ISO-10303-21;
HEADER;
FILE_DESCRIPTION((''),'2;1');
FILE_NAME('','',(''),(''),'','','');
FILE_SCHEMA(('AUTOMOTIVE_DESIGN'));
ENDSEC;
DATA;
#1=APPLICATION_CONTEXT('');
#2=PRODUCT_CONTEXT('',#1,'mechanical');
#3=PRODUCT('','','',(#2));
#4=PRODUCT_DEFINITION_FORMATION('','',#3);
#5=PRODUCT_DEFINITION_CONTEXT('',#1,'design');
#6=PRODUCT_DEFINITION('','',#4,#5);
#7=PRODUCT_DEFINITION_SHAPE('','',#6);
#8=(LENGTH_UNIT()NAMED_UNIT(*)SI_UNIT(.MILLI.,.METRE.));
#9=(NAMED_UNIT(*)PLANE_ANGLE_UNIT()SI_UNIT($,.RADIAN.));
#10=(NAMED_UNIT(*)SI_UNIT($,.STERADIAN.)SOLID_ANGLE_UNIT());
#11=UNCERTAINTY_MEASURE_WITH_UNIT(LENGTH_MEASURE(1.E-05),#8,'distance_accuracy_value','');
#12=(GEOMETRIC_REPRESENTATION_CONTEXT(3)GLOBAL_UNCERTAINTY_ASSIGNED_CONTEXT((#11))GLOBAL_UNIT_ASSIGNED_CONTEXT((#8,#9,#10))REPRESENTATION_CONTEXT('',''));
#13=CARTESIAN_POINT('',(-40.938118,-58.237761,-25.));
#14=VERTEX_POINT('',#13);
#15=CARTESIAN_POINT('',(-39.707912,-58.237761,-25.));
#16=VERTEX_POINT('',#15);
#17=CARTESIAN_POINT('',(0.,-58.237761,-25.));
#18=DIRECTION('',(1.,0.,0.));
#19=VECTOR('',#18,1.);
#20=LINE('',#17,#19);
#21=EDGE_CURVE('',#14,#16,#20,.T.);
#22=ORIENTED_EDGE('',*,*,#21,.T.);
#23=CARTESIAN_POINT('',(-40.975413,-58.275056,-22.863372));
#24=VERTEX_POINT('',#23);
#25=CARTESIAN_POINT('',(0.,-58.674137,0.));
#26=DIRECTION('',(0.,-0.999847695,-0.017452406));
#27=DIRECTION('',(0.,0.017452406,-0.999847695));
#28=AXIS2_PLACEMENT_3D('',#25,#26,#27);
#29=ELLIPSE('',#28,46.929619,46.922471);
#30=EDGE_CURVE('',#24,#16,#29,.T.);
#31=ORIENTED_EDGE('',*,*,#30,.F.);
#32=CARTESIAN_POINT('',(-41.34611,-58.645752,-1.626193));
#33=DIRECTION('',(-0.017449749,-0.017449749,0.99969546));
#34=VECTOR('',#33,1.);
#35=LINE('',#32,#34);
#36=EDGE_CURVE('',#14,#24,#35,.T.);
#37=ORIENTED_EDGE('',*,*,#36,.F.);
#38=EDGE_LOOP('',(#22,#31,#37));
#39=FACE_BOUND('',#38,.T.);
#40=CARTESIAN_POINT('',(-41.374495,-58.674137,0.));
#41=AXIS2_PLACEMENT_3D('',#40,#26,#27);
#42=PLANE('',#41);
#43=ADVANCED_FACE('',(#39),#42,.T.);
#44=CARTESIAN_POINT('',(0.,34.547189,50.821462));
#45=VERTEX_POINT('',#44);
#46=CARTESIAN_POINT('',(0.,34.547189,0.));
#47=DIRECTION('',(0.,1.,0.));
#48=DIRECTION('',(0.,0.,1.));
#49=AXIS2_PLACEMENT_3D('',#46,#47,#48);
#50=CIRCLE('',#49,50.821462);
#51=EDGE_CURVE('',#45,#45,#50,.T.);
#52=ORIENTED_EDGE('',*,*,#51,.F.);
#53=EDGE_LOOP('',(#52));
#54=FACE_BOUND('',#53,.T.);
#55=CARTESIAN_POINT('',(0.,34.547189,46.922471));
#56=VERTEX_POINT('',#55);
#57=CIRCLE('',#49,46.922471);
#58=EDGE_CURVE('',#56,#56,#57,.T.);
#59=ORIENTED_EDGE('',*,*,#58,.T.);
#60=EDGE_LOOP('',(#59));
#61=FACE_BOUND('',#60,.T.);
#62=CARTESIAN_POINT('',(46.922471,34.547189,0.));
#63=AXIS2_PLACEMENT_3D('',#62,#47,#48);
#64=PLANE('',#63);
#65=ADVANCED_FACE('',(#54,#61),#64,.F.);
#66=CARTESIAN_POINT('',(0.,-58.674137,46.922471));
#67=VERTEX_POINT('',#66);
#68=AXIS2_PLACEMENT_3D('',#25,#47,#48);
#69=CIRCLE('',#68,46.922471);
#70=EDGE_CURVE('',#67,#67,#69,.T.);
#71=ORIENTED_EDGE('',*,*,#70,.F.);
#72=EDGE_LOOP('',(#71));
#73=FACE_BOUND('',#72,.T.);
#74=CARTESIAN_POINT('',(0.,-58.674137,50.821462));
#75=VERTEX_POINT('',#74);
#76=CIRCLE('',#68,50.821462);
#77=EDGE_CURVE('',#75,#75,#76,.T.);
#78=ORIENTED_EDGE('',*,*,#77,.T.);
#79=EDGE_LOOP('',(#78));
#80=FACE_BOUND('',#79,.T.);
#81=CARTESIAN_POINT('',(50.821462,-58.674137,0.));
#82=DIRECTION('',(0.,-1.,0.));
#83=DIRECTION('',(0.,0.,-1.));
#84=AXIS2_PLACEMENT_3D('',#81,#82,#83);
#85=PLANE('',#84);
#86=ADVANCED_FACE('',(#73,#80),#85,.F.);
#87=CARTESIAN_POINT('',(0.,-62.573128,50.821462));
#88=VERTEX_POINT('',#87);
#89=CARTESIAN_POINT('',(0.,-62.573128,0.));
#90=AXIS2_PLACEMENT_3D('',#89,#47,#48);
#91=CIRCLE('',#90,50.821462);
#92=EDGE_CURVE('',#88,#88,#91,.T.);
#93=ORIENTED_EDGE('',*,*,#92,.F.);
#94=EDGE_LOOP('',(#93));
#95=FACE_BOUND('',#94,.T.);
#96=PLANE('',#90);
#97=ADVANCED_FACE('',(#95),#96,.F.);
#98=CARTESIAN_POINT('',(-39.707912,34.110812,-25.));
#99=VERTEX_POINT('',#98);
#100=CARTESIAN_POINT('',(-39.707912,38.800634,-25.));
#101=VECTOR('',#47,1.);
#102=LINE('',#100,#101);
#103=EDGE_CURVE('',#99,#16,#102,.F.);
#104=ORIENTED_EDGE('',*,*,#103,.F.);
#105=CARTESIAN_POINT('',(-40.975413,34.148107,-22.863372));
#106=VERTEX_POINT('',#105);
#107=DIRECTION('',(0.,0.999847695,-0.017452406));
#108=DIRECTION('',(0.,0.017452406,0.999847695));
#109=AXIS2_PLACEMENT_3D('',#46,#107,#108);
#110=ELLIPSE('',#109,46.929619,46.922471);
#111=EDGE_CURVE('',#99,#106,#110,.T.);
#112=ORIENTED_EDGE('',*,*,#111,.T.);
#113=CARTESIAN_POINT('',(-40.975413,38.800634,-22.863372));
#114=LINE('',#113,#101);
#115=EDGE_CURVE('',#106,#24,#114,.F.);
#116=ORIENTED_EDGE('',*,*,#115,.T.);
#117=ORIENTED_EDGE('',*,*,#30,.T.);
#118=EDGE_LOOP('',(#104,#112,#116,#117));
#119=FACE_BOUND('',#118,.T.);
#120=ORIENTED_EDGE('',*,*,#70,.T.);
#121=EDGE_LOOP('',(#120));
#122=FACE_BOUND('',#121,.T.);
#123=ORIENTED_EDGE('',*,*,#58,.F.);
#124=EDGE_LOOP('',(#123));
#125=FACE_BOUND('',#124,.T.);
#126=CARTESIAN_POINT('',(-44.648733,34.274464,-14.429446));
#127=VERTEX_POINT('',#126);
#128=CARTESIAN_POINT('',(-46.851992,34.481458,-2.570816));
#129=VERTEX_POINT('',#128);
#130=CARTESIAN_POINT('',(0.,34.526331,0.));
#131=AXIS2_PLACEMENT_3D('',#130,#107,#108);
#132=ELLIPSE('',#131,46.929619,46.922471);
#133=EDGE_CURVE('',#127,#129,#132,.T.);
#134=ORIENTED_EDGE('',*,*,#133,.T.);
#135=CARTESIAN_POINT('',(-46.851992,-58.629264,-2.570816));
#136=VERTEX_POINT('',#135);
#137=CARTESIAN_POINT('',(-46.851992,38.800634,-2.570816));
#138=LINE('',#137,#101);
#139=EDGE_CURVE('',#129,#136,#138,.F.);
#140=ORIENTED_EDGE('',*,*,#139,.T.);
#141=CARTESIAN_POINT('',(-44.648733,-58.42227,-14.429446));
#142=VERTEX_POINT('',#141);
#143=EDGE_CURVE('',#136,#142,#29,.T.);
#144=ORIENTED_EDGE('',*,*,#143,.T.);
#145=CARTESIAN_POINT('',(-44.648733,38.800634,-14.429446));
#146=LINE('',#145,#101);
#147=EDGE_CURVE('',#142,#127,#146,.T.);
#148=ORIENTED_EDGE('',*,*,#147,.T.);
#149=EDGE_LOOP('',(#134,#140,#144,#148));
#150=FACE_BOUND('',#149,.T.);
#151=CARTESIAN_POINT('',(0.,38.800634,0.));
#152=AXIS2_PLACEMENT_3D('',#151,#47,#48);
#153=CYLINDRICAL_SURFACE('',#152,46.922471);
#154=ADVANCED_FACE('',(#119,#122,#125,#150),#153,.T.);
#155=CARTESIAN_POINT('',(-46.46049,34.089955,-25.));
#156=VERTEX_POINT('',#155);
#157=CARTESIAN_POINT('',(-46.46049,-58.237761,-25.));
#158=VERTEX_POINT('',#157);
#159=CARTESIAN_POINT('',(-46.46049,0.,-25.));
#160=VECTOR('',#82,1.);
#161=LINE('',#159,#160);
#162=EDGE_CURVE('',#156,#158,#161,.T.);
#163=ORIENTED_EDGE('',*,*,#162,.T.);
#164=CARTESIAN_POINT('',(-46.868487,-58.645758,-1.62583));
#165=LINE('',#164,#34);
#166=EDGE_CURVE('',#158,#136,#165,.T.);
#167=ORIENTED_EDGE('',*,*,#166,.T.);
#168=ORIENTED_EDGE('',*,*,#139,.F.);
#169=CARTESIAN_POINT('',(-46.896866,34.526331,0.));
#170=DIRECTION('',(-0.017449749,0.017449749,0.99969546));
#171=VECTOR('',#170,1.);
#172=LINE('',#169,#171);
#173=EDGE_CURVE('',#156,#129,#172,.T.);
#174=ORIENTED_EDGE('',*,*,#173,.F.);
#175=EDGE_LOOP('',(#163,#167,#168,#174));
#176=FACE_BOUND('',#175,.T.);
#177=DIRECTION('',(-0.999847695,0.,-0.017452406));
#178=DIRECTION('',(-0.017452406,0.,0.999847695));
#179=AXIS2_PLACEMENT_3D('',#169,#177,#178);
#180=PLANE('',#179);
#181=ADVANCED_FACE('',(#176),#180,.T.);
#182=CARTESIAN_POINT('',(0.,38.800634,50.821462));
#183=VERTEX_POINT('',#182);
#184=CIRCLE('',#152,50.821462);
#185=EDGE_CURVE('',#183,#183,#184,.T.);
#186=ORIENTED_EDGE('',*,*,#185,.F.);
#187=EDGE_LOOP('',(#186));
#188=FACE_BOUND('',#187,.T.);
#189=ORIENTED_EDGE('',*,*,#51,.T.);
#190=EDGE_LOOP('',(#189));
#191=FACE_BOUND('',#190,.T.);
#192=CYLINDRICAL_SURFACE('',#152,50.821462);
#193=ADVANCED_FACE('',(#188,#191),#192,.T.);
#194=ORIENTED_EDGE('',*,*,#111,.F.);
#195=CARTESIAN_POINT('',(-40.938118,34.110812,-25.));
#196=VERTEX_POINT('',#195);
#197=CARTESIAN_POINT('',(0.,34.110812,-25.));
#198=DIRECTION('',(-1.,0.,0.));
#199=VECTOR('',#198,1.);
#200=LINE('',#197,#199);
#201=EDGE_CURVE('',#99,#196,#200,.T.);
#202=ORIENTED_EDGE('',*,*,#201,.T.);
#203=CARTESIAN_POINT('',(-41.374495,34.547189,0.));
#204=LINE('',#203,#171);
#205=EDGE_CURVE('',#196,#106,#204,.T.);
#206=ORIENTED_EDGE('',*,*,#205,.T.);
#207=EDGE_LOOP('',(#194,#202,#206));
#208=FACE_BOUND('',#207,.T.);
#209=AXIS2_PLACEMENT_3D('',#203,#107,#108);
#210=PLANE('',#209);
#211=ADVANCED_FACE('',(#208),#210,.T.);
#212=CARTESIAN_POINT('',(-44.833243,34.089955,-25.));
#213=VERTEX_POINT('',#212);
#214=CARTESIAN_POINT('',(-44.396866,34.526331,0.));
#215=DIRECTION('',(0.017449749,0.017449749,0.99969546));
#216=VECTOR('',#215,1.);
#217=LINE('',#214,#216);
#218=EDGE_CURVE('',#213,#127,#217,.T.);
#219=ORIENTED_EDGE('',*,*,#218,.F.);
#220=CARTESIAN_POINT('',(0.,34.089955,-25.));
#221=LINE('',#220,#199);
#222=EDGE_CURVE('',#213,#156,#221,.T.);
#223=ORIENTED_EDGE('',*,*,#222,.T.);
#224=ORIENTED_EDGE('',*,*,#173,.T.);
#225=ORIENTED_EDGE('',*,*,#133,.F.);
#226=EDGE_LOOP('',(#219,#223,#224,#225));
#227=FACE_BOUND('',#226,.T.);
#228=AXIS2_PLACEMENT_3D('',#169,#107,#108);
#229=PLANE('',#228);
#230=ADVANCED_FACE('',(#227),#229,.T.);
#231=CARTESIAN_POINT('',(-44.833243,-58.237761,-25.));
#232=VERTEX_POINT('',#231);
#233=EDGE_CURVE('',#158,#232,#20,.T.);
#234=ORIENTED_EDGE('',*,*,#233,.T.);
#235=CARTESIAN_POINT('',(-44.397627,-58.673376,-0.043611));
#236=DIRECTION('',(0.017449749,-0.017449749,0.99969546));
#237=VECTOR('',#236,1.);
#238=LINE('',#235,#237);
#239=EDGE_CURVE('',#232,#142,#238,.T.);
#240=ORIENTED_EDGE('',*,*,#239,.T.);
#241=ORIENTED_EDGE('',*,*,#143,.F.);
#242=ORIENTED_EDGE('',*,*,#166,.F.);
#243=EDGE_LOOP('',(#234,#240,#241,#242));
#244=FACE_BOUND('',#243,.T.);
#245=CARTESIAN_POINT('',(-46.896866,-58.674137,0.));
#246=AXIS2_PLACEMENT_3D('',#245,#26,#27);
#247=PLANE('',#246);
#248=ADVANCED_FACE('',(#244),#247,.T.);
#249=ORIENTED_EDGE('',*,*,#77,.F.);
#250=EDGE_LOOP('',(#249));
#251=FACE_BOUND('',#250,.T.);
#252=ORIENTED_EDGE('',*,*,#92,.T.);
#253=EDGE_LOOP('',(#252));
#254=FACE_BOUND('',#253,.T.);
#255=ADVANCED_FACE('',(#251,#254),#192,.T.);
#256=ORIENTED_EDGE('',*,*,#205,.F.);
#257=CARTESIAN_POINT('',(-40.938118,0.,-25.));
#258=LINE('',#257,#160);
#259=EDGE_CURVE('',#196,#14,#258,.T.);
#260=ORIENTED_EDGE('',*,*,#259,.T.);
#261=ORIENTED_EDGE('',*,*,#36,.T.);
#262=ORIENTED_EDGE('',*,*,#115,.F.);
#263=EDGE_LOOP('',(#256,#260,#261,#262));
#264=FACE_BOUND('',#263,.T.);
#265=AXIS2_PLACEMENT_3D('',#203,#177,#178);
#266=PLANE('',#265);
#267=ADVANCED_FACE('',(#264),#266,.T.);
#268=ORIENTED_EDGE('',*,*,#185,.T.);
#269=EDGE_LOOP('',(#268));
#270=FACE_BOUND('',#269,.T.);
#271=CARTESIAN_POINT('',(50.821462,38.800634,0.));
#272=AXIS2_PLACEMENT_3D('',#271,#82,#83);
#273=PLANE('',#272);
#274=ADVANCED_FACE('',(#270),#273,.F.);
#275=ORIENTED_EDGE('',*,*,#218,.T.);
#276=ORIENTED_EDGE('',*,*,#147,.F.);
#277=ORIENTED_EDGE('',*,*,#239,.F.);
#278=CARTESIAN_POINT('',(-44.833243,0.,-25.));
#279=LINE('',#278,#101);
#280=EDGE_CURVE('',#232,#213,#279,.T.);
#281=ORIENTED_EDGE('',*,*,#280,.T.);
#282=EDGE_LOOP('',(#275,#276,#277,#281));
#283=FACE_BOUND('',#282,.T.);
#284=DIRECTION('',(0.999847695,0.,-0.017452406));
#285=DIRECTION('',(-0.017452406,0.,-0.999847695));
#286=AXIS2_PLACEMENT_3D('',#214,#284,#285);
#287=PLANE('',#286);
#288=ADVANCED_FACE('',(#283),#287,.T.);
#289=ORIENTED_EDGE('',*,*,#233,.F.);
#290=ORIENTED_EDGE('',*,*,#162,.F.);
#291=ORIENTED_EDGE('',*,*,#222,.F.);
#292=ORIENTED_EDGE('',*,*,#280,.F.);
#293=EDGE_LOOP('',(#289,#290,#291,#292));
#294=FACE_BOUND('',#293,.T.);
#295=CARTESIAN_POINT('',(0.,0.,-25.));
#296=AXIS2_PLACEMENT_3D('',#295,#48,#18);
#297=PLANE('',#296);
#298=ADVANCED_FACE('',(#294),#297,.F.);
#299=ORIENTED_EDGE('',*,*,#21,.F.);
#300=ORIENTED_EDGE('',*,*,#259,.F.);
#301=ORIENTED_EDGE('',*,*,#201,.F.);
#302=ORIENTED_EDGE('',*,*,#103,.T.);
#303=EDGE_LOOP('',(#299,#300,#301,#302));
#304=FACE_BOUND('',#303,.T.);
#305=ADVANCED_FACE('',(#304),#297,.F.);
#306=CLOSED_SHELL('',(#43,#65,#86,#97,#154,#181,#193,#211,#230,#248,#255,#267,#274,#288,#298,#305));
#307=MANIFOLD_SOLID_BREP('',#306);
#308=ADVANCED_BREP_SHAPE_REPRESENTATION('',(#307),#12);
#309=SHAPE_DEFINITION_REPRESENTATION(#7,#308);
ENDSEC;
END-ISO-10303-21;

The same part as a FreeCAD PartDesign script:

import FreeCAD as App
import Part
import Sketcher
Q = App.Units.Quantity

doc = App.newDocument("Part")
body = doc.addObject("PartDesign::Body", "Body")

# Sketch on XY plane
sketch1 = body.newObject("Sketcher::SketchObject", "Sketch")
sketch1.AttachmentSupport = (doc.getObject("XY_Plane"), [""])
sketch1.MapMode = "FlatFace"
sketch1.addGeometry([
    Part.LineSegment(App.Vector(0, 38.8, 0), App.Vector(0, -62.6, 0)),  # 0
    Part.LineSegment(App.Vector(0, -62.6, 0), App.Vector(50.8, -62.6, 0)),  # 1
    Part.LineSegment(App.Vector(50.8, -62.6, 0), App.Vector(50.8, -58.7, 0)),  # 2
    Part.LineSegment(App.Vector(50.8, -58.7, 0), App.Vector(46.9, -58.7, 0)),  # 3
    Part.LineSegment(App.Vector(46.9, -58.7, 0), App.Vector(46.9, 34.5, 0)),  # 4
    Part.LineSegment(App.Vector(46.9, 34.5, 0), App.Vector(50.8, 34.5, 0)),  # 5
    Part.LineSegment(App.Vector(50.8, 34.5, 0), App.Vector(50.8, 38.8, 0)),  # 6
    Part.LineSegment(App.Vector(50.8, 38.8, 0), App.Vector(0, 38.8, 0)),  # 7
], False)
sketch1.addConstraint([
    Sketcher.Constraint("Coincident", 0, 2, 1, 1),
    Sketcher.Constraint("Coincident", 1, 2, 2, 1),
    Sketcher.Constraint("Coincident", 2, 2, 3, 1),
    Sketcher.Constraint("Coincident", 3, 2, 4, 1),
    Sketcher.Constraint("Coincident", 4, 2, 5, 1),
    Sketcher.Constraint("Coincident", 5, 2, 6, 1),
    Sketcher.Constraint("Coincident", 6, 2, 7, 1),
    Sketcher.Constraint("Coincident", 7, 2, 0, 1),
    Sketcher.Constraint("Vertical", 0),
    Sketcher.Constraint("Horizontal", 1),
    Sketcher.Constraint("Vertical", 2),
    Sketcher.Constraint("Horizontal", 3),
    Sketcher.Constraint("Vertical", 4),
    Sketcher.Constraint("Horizontal", 5),
    Sketcher.Constraint("Vertical", 6),
    Sketcher.Constraint("Horizontal", 7),
    Sketcher.Constraint("PointOnObject", 0, 2, -2),
    Sketcher.Constraint("Vertical", 2, 2, 5, 2),
    Sketcher.Constraint("Equal", 5, 2),
    Sketcher.Constraint("DistanceX", 1, 1, 1, 2, Q("50.821462 mm")),
    Sketcher.Constraint("DistanceX", 3, 2, 3, 1, Q("3.898991 mm")),
    Sketcher.Constraint("DistanceY", 0, 2, 0, 1, Q("101.373762 mm")),
    Sketcher.Constraint("DistanceY", 4, 1, 4, 2, Q("93.221326 mm")),
    Sketcher.Constraint("DistanceY", 0, 2, -1, 1, Q("62.573128 mm")),
])
revolution = body.newObject("PartDesign::Revolution", "Revolution")
revolution.Profile = sketch1
revolution.ReferenceAxis = (sketch1, ["V_Axis"])
revolution.Angle = 360

# Sketch on XY plane
sketch2 = body.newObject("Sketcher::SketchObject", "Sketch001")
sketch2.AttachmentSupport = (doc.getObject("XY_Plane"), [""])
sketch2.MapMode = "FlatFace"
sketch2.addGeometry([
    Part.LineSegment(App.Vector(-46.9, 34.5, 0), App.Vector(-46.9, -58.7, 0)),  # 0
    Part.LineSegment(App.Vector(-46.9, -58.7, 0), App.Vector(-44.4, -58.7, 0)),  # 1
    Part.LineSegment(App.Vector(-44.4, -58.7, 0), App.Vector(-44.4, 34.5, 0)),  # 2
    Part.LineSegment(App.Vector(-44.4, 34.5, 0), App.Vector(-46.9, 34.5, 0)),  # 3
    Part.LineSegment(App.Vector(-41.4, 34.5, 0), App.Vector(-41.4, -58.7, 0)),  # 4
    Part.LineSegment(App.Vector(-41.4, -58.7, 0), App.Vector(-38.9, -58.7, 0)),  # 5
    Part.LineSegment(App.Vector(-38.9, -58.7, 0), App.Vector(-38.9, 34.5, 0)),  # 6
    Part.LineSegment(App.Vector(-38.9, 34.5, 0), App.Vector(-41.4, 34.5, 0)),  # 7
], False)
sketch2.addConstraint([
    Sketcher.Constraint("Coincident", 0, 2, 1, 1),
    Sketcher.Constraint("Coincident", 1, 2, 2, 1),
    Sketcher.Constraint("Coincident", 2, 2, 3, 1),
    Sketcher.Constraint("Coincident", 3, 2, 0, 1),
    Sketcher.Constraint("Coincident", 4, 2, 5, 1),
    Sketcher.Constraint("Coincident", 5, 2, 6, 1),
    Sketcher.Constraint("Coincident", 6, 2, 7, 1),
    Sketcher.Constraint("Coincident", 7, 2, 4, 1),
    Sketcher.Constraint("Vertical", 0),
    Sketcher.Constraint("Horizontal", 1),
    Sketcher.Constraint("Vertical", 2),
    Sketcher.Constraint("Horizontal", 3),
    Sketcher.Constraint("Vertical", 4),
    Sketcher.Constraint("Horizontal", 5),
    Sketcher.Constraint("Vertical", 6),
    Sketcher.Constraint("Horizontal", 7),
    Sketcher.Constraint("Horizontal", 1, 2, 4, 2),
    Sketcher.Constraint("Equal", 3, 5),
    Sketcher.Constraint("DistanceX", 1, 1, 1, 2, Q("2.5 mm")),
    Sketcher.Constraint("DistanceY", 0, 2, 0, 1, Q("93.200469 mm")),
    Sketcher.Constraint("DistanceY", 4, 2, 4, 1, Q("93.221326 mm")),
    Sketcher.Constraint("DistanceY", -1, 1, 2, 2, Q("34.526331 mm")),
    Sketcher.Constraint("DistanceX", 1, 2, 4, 2, Q("3.022371 mm")),
    Sketcher.Constraint("DistanceX", 0, 2, -1, 1, Q("46.896866 mm")),
])
pad1 = body.newObject("PartDesign::Pad", "Pad")
pad1.Profile = sketch2
pad1.Length = 25
pad1.Reversed = True
pad1.TaperAngle = -1

doc.recompute()
